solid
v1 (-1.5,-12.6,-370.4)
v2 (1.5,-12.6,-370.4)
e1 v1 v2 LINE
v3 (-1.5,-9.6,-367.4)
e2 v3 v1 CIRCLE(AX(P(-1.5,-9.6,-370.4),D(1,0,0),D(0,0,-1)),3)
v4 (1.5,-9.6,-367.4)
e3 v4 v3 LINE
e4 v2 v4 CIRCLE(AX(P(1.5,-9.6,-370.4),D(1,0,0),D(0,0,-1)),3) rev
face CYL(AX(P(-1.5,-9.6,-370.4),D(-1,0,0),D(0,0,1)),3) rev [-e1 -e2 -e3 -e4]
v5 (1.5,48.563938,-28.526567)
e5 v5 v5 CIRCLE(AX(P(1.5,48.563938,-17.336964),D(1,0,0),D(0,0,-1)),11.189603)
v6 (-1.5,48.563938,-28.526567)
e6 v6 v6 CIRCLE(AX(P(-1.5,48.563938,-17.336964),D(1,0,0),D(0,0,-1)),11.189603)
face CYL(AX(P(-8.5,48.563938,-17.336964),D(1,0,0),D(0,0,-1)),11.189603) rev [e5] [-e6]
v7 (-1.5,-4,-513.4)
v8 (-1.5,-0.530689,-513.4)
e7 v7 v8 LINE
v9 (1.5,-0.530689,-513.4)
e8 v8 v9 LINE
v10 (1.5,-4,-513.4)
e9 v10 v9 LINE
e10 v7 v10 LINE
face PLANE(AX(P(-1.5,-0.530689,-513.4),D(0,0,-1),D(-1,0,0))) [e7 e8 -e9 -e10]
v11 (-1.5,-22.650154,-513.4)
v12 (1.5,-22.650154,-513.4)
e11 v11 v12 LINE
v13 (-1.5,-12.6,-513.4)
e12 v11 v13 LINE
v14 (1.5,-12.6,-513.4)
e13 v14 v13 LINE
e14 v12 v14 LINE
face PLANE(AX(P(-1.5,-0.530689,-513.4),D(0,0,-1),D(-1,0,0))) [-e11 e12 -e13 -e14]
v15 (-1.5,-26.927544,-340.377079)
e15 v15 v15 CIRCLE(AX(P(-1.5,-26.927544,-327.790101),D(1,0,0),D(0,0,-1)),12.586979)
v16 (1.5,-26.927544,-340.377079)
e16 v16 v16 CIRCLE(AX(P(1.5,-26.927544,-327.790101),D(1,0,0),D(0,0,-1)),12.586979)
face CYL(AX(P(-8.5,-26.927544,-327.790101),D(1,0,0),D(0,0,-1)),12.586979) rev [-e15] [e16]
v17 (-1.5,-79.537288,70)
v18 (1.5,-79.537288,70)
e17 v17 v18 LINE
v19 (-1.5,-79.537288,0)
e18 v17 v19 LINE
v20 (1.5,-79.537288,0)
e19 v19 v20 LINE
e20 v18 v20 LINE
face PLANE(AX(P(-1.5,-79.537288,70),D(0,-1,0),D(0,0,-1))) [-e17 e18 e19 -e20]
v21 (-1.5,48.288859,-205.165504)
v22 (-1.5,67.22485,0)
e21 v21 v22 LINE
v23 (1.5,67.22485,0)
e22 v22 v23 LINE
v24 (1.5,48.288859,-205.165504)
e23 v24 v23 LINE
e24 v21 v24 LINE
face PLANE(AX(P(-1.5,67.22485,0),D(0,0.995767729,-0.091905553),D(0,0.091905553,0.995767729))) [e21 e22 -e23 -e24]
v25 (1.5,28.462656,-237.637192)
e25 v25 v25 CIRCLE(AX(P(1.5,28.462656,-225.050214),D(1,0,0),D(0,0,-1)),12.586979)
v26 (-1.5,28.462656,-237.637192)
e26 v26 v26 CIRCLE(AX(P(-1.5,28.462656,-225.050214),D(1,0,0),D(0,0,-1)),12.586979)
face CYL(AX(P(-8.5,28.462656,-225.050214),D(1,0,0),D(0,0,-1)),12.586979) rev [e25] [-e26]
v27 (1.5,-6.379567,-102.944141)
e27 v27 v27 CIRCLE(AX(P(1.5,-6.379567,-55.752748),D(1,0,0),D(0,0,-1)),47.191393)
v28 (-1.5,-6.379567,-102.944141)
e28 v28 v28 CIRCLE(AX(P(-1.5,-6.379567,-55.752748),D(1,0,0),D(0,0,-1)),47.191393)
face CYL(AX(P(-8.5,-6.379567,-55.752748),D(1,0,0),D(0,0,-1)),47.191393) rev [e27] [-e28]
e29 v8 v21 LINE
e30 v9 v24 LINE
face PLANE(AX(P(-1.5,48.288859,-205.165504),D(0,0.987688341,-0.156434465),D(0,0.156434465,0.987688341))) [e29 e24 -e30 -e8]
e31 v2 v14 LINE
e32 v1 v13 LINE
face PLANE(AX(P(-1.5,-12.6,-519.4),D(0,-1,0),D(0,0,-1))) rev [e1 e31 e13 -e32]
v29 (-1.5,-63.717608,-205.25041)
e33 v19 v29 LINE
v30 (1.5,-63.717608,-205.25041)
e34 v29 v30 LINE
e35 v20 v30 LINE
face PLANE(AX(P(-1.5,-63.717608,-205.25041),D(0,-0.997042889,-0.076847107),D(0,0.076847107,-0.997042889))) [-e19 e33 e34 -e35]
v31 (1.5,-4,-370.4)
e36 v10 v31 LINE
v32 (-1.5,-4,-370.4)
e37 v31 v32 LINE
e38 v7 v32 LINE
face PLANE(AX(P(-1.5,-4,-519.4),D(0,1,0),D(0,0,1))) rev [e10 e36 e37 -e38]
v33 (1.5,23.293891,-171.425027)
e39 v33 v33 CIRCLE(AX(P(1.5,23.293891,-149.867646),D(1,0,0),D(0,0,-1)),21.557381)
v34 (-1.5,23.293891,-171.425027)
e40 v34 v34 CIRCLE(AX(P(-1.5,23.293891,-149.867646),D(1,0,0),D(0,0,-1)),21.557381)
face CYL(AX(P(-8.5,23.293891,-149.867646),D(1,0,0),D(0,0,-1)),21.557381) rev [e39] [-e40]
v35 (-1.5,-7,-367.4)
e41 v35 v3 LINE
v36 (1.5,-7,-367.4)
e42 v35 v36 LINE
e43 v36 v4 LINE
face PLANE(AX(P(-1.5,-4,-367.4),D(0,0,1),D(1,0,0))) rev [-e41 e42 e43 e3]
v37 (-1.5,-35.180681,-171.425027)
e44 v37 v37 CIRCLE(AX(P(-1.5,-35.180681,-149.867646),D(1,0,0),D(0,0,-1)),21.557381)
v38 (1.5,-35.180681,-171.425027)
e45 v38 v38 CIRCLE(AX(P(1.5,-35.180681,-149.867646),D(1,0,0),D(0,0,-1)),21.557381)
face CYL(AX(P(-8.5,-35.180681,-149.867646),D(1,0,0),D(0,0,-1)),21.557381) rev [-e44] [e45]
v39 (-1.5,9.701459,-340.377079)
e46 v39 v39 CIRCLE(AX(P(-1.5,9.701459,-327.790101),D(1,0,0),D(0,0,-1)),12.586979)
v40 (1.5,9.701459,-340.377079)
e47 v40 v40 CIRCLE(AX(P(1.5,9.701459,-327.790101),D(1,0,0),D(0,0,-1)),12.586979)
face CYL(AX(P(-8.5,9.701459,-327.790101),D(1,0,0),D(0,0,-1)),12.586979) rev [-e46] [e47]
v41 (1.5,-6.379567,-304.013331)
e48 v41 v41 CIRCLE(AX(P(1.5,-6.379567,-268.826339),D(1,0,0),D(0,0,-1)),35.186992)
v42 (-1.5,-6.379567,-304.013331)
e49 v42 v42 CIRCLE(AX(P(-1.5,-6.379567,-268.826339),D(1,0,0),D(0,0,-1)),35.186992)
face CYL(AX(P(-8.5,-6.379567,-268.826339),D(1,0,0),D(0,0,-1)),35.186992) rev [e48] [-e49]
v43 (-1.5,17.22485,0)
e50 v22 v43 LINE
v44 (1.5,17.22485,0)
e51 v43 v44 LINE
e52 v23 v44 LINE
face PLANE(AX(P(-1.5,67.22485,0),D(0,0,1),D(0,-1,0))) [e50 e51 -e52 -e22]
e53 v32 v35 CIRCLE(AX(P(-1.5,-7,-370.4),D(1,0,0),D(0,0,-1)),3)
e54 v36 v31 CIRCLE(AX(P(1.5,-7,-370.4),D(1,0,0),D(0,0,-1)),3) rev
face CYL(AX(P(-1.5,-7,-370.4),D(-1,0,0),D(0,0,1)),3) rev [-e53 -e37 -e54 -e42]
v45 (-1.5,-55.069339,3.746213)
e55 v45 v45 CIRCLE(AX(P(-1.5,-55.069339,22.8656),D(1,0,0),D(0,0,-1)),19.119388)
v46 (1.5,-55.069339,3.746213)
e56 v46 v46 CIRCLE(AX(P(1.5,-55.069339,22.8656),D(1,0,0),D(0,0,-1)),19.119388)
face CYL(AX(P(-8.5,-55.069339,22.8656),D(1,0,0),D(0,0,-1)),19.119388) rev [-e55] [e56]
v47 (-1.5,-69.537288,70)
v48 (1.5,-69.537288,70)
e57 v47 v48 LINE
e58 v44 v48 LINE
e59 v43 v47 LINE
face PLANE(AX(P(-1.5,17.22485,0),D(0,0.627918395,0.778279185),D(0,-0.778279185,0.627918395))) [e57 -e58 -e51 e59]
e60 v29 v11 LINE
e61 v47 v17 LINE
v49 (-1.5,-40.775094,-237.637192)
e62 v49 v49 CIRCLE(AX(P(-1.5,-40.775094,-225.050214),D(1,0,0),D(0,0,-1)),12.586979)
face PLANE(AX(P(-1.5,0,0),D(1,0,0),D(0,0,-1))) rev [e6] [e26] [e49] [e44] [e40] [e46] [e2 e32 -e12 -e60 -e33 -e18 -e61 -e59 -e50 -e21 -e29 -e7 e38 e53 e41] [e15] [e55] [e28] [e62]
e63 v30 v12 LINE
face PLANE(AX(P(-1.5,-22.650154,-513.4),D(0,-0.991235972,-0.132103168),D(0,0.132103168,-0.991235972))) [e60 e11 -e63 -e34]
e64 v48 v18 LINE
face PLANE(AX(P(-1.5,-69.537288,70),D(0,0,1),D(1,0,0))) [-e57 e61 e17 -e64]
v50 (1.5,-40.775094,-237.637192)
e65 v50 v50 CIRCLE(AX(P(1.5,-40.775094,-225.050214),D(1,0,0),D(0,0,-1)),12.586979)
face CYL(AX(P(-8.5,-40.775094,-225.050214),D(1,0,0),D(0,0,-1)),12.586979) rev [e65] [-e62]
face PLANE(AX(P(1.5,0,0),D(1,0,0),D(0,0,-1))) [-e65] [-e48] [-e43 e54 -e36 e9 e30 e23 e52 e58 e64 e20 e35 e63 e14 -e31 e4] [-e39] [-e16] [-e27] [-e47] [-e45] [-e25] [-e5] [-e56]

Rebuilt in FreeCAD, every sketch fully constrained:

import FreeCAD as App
import Part
import Sketcher
Q = App.Units.Quantity


def edges_at(feature, points):
    """Names of the edges that pass closest to the given points."""
    edges = feature.Shape.Edges
    near = lambda p: min(range(len(edges)), key=lambda i: edges[i].distToShape(Part.Vertex(*p))[0])
    return sorted({f"Edge{near(p) + 1}" for p in points})


def add_polygon(sketch, points):
    """Adds a closed chain of lines whose ends are joined by coincident constraints."""
    first, n = sketch.GeometryCount, len(points)
    for a, b in zip(points, points[1:] + points[:1]):
        sketch.addGeometry(Part.LineSegment(App.Vector(*a, 0), App.Vector(*b, 0)), False)
    for i in range(n):
        sketch.addConstraint(Sketcher.Constraint("Coincident", first + i, 2, first + (i + 1) % n, 1))

doc = App.newDocument("Part")
params = doc.addObject("Spreadsheet::Sheet", "Params")
for row, (alias, value) in enumerate([
    ("sketch1_width", "50 mm"),
    ("sketch1_width2", "10 mm"),
    ("sketch1_height", "70 mm"),
    ("pad1_length", "1.5 mm"),
    ("pad1_length2", "1.5 mm"),
    ("sketch2_height", "152 mm"),
    ("sketch2_width", "8.6 mm"),
    ("fillet_radius", "3 mm"),
    ("pocket2_length", "10 mm"),
], start=1):
    params.set(f"A{row}", alias)
    params.set(f"B{row}", "=" + value)
    params.setAlias(f"B{row}", alias)

body = doc.addObject("PartDesign::Body", "Body")

sketch1 = body.newObject("Sketcher::SketchObject", "Sketch")
sketch1.AttachmentSupport = (doc.getObject("YZ_Plane"), [""])
sketch1.MapMode = "FlatFace"
add_polygon(sketch1, [(48, -205), (67, 0), (17, 0), (-70, 70), (-80, 70), (-80, 0), (-64, -205), (-23, -513), (-1, -513)])
sketch1.addConstraint([
    Sketcher.Constraint("Horizontal", 1),
    Sketcher.Constraint("Horizontal", 3),
    Sketcher.Constraint("Vertical", 4),
    Sketcher.Constraint("Horizontal", 7),
    Sketcher.Constraint("PointOnObject", 0, 2, -1),
    Sketcher.Constraint("PointOnObject", 4, 2, -1),
    Sketcher.Constraint("DistanceX", 1, 2, 1, 1, 50.0),
    Sketcher.Constraint("DistanceX", 3, 2, 3, 1, 10.0),
    Sketcher.Constraint("DistanceY", 4, 2, 4, 1, 70.0),
    Sketcher.Constraint("Angle", 8, Q("81 deg")),
    Sketcher.Constraint("DistanceY", 6, 2, -1, 1, 513.4),
    Sketcher.Constraint("Distance", 6, 310.874099),
    Sketcher.Constraint("DistanceX", 4, 2, 7, 2, 79.006599),
    Sketcher.Constraint("Distance", 0, 206.03751),
    Sketcher.Constraint("Distance", 5, 205.859158),
    Sketcher.Constraint("DistanceX", 7, 1, 7, 2, 22.119465),
    Sketcher.Constraint("DistanceX", -1, 1, 0, 2, 67.22485),
    Sketcher.Constraint("DistanceX", 2, 2, -1, 1, 69.537288),
])
sketch1.setExpression("Constraints[15]", "Params.sketch1_width")
sketch1.setExpression("Constraints[16]", "Params.sketch1_width2")
sketch1.setExpression("Constraints[17]", "Params.sketch1_height")
pad1 = body.newObject("PartDesign::Pad", "Pad")
pad1.Profile = sketch1
pad1.Type = "TwoLengths"
pad1.setExpression("Length", "Params.pad1_length")
pad1.setExpression("Length2", "Params.pad1_length2")

sketch2 = body.newObject("Sketcher::SketchObject", "Sketch001")
sketch2.AttachmentSupport = (doc.getObject("YZ_Plane"), [""])
sketch2.MapMode = "FlatFace"
sketch2.AttachmentOffset = App.Placement(App.Vector(0, 0, 1.5), App.Rotation())
add_polygon(sketch2, [(-4, -367), (-13, -367), (-13, -519), (-4, -519)])
sketch2.addConstraint([
    Sketcher.Constraint("Horizontal", 0),
    Sketcher.Constraint("Vertical", 1),
    Sketcher.Constraint("Horizontal", 2),
    Sketcher.Constraint("Vertical", 3),
    Sketcher.Constraint("DistanceY", 1, 2, 1, 1, 152.0),
    Sketcher.Constraint("DistanceX", 0, 2, 0, 1, 8.6),
    Sketcher.Constraint("DistanceX", 2, 2, -1, 1, 4.0),
    Sketcher.Constraint("DistanceY", 0, 2, -1, 1, 367.4),
])
sketch2.setExpression("Constraints[8]", "Params.sketch2_height")
sketch2.setExpression("Constraints[9]", "Params.sketch2_width")
pocket1 = body.newObject("PartDesign::Pocket", "Pocket")
pocket1.Profile = sketch2
pocket1.Type = "ThroughAll"
doc.recompute()

fillet = body.newObject("PartDesign::Fillet", "Fillet")
fillet.Base = (pocket1, edges_at(pocket1, [(0, -12.6, -367.4), (0, -4, -367.4)]))
fillet.setExpression("Radius", "Params.fillet_radius")

sketch3 = body.newObject("Sketcher::SketchObject", "Sketch002")
sketch3.AttachmentSupport = (doc.getObject("YZ_Plane"), [""])
sketch3.MapMode = "FlatFace"
sketch3.AttachmentOffset = App.Placement(App.Vector(0, 0, 1.5), App.Rotation())
sketch3.addGeometry([
    Part.Circle(App.Vector(-55, 23, 0), App.Vector(0, 0, 1), 19),
    Part.Circle(App.Vector(-6, -56, 0), App.Vector(0, 0, 1), 47),
    Part.Circle(App.Vector(-6, -269, 0), App.Vector(0, 0, 1), 35),
    Part.Circle(App.Vector(28, -225, 0), App.Vector(0, 0, 1), 13),
    Part.Circle(App.Vector(49, -17, 0), App.Vector(0, 0, 1), 11),
    Part.Circle(App.Vector(-41, -225, 0), App.Vector(0, 0, 1), 13),
    Part.Circle(App.Vector(-27, -328, 0), App.Vector(0, 0, 1), 13),
    Part.Circle(App.Vector(10, -328, 0), App.Vector(0, 0, 1), 13),
    Part.Circle(App.Vector(23, -150, 0), App.Vector(0, 0, 1), 22),
    Part.Circle(App.Vector(-35, -150, 0), App.Vector(0, 0, 1), 22),
], False)
sketch3.addConstraint([
    Sketcher.Constraint("Equal", 3, 5),
    Sketcher.Constraint("Equal", 5, 6),
    Sketcher.Constraint("Equal", 6, 7),
    Sketcher.Constraint("Equal", 8, 9),
    Sketcher.Constraint("Horizontal", 3, 3, 5, 3),
    Sketcher.Constraint("Horizontal", 6, 3, 7, 3),
    Sketcher.Constraint("Horizontal", 8, 3, 9, 3),
    Sketcher.Constraint("Vertical", 1, 3, 2, 3),
    Sketcher.Constraint("Diameter", 8, 43.114761),
    Sketcher.Constraint("Diameter", 0, 38.238776),
    Sketcher.Constraint("Diameter", 1, 94.382787),
    Sketcher.Constraint("Diameter", 2, 70.373984),
    Sketcher.Constraint("Diameter", 3, 25.173957),
    Sketcher.Constraint("Diameter", 4, 22.379207),
    Sketcher.Constraint("DistanceY", -1, 1, 0, 3, 22.8656),
    Sketcher.Constraint("DistanceY", 6, 3, -1, 1, 327.790101),
    Sketcher.Constraint("DistanceX", 6, 3, 3, 3, 55.3902),
    Sketcher.Constraint("DistanceY", 8, 3, 1, 3, 94.114899),
    Sketcher.Constraint("DistanceX", 0, 3, -1, 1, 55.069339),
    Sketcher.Constraint("DistanceY", 2, 3, -1, 1, 268.826339),
    Sketcher.Constraint("DistanceX", -1, 1, 4, 3, 48.563938),
    Sketcher.Constraint("DistanceX", -1, 1, 7, 3, 9.701459),
    Sketcher.Constraint("DistanceX", -1, 1, 8, 3, 23.293891),
    Sketcher.Constraint("DistanceX", 9, 3, -1, 1, 35.180681),
    Sketcher.Constraint("DistanceY", 1, 3, 0, 3, 78.618348),
    Sketcher.Constraint("DistanceY", 3, 3, 4, 3, 207.71325),
    Sketcher.Constraint("DistanceX", 5, 3, 3, 3, 69.23775),
    Sketcher.Constraint("DistanceX", 1, 3, -1, 1, 6.379567),
    Sketcher.Constraint("DistanceX", -1, 1, 3, 3, 28.462656),
    Sketcher.Constraint("DistanceY", 3, 3, -1, 1, 225.050214),
])
pocket2 = body.newObject("PartDesign::Pocket", "Pocket001")
pocket2.Profile = sketch3
pocket2.setExpression("Length", "Params.pocket2_length")

doc.recompute()
